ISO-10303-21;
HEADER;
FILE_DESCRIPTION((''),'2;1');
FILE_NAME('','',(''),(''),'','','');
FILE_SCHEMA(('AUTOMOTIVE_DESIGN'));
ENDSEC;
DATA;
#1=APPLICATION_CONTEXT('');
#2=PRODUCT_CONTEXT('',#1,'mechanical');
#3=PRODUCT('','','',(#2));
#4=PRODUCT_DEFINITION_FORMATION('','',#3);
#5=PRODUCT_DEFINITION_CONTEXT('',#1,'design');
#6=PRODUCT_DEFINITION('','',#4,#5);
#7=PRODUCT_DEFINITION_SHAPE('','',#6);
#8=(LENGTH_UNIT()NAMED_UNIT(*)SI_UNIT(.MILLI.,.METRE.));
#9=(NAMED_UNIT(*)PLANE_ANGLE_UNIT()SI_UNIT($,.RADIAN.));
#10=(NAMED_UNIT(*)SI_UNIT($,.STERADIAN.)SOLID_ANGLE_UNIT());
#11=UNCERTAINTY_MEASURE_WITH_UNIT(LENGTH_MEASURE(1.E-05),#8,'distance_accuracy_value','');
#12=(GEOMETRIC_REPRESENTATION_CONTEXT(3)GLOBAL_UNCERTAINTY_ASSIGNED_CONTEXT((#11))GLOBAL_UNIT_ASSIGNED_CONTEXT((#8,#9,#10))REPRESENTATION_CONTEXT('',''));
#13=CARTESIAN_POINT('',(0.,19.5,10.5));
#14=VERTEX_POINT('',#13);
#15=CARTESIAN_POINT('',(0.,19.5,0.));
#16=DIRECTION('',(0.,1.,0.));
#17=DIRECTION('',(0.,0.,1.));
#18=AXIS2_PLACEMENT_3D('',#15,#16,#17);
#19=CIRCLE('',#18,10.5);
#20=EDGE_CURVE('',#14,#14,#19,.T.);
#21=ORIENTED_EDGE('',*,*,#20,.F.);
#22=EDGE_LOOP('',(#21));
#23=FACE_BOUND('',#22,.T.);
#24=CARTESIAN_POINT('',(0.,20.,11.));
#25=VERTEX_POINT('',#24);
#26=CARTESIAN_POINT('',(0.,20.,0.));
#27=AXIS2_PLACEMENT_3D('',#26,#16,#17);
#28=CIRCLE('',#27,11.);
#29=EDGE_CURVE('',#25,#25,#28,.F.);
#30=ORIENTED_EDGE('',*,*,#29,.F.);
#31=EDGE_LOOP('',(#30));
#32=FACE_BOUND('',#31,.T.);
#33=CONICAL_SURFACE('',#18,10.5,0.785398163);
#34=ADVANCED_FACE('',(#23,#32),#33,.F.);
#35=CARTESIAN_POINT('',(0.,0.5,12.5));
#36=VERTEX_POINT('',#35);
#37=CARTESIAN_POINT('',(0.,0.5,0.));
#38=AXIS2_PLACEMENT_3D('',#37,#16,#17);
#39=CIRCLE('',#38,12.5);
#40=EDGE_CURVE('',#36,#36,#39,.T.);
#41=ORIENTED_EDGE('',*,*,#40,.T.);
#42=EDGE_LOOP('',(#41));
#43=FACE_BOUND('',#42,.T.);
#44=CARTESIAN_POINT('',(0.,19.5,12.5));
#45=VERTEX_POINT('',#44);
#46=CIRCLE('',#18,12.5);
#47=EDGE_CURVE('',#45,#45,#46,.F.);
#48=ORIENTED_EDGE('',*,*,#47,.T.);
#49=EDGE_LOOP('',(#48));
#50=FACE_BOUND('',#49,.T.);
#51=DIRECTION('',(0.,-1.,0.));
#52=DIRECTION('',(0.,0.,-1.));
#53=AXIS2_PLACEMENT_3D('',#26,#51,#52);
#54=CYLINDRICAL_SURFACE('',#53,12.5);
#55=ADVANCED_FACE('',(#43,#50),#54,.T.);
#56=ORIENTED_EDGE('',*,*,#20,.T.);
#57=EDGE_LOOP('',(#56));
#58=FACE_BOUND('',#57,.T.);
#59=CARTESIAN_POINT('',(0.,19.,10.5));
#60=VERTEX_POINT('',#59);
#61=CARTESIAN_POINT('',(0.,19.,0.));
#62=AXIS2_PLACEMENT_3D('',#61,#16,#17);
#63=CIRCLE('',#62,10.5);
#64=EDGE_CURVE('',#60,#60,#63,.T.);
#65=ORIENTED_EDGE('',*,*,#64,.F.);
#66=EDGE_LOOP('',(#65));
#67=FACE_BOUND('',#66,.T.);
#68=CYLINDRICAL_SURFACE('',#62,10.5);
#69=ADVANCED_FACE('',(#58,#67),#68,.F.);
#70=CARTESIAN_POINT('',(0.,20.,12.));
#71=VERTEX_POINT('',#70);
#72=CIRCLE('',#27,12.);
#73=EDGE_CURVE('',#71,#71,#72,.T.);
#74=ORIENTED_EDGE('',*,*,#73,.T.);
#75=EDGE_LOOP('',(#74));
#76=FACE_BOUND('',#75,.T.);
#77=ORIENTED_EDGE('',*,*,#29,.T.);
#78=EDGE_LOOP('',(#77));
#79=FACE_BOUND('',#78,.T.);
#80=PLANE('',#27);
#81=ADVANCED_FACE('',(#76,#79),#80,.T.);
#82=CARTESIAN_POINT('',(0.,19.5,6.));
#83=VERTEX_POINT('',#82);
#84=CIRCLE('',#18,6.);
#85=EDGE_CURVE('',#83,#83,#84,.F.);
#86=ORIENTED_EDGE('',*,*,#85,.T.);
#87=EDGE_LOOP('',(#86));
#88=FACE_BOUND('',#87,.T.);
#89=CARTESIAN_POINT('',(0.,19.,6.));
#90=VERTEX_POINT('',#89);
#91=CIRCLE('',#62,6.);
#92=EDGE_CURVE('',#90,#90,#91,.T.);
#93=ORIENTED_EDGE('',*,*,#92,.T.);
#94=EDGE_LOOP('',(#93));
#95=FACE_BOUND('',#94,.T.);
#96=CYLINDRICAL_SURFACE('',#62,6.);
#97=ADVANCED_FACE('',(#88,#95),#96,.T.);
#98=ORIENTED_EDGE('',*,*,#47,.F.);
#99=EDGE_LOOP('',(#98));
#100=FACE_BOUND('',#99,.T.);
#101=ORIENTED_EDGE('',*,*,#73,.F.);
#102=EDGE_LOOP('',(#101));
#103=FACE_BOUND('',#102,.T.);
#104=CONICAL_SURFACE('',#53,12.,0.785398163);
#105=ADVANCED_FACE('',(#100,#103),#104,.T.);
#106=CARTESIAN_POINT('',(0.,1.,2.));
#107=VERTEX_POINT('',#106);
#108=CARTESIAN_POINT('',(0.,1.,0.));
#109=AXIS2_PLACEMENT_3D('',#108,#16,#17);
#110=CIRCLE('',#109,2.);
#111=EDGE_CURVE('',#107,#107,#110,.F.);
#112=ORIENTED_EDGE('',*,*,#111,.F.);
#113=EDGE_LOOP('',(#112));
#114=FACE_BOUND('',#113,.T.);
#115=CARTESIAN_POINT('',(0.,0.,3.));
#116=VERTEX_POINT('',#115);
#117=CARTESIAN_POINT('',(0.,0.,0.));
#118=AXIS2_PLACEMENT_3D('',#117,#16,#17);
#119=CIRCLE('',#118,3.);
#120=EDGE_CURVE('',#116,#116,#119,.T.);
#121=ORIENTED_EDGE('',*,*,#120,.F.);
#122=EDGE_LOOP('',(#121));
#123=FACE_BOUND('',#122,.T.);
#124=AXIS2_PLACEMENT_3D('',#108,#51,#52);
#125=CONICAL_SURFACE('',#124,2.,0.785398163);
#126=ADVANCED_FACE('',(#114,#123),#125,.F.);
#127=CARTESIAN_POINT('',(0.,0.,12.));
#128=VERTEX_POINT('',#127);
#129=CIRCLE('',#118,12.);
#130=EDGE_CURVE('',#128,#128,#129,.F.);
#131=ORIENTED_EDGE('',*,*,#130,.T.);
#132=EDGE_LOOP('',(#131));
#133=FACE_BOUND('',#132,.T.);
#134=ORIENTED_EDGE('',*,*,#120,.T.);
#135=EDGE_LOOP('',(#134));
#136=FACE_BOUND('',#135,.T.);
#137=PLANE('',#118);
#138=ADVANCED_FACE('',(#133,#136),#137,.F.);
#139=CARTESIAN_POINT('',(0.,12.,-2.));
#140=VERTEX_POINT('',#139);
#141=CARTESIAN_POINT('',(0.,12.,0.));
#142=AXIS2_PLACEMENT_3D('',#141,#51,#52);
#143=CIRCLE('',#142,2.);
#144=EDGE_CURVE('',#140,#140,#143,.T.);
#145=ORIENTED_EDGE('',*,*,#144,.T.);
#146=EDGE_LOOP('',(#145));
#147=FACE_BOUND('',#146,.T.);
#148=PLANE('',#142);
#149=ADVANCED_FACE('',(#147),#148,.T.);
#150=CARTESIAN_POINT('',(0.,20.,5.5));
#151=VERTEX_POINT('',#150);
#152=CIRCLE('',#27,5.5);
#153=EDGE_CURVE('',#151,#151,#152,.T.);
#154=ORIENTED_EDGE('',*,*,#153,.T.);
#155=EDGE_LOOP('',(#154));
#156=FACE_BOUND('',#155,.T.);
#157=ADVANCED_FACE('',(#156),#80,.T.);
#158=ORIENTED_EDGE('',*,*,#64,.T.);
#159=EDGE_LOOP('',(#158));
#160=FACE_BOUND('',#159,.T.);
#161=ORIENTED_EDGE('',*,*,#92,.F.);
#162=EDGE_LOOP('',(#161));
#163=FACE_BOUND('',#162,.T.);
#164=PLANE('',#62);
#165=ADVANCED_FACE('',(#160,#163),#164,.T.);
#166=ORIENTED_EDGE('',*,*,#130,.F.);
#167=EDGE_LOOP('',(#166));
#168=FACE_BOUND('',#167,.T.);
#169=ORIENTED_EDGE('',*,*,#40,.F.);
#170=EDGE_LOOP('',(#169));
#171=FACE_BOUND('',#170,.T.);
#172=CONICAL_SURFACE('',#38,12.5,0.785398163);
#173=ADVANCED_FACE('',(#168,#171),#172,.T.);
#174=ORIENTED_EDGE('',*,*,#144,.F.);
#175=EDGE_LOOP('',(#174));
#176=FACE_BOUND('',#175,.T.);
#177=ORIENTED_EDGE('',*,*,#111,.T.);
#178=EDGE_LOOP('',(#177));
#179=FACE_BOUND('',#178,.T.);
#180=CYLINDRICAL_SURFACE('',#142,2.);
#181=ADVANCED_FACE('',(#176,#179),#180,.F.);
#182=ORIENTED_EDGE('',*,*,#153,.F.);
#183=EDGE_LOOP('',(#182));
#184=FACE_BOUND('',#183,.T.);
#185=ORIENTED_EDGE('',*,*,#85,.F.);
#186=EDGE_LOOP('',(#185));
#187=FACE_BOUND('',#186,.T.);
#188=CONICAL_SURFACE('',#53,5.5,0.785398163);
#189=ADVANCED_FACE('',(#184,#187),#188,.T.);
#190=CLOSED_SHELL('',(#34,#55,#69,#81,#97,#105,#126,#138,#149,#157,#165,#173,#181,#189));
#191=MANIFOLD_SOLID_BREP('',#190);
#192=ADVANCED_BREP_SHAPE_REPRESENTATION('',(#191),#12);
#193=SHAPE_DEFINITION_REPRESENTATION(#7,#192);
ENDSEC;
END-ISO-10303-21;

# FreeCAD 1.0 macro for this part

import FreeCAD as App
import Part
import Sketcher
Q = App.Units.Quantity


def edges_at(feature, points):
    """Names of the edges that pass closest to the given points."""
    edges = feature.Shape.Edges
    near = lambda p: min(range(len(edges)), key=lambda i: edges[i].distToShape(Part.Vertex(*p))[0])
    return sorted({f"Edge{near(p) + 1}" for p in points})

doc = App.newDocument("Part")
body = doc.addObject("PartDesign::Body", "Body")

sketch1 = doc.addObject("Sketcher::SketchObject", "Sketch")
body.addObject(sketch1)
sketch1.AttachmentSupport = (doc.XZ_Plane, [""])
sketch1.MapMode = "FlatFace"
sketch1.addGeometry(Part.Circle(App.Vector(0, 0, 0), App.Vector(0, 0, 1), 12), False)
sketch1.addConstraint([
    Sketcher.Constraint("Coincident", 0, 3, -1, 1),
    Sketcher.Constraint("Diameter", 0, Q("25 mm")),
])
pad1 = doc.addObject("PartDesign::Pad", "Pad")
body.addObject(pad1)
pad1.Profile = sketch1
pad1.Length = 20
pad1.Reversed = True

sketch2 = doc.addObject("Sketcher::SketchObject", "Sketch001")
body.addObject(sketch2)
sketch2.AttachmentSupport = (doc.XZ_Plane, [""])
sketch2.MapMode = "FlatFace"
sketch2.AttachmentOffset = App.Placement(App.Vector(0, 0, -20), App.Rotation())
sketch2.addGeometry([
    Part.Circle(App.Vector(0, 0, 0), App.Vector(0, 0, 1), 10),
    Part.Circle(App.Vector(0, 0, 0), App.Vector(0, 0, 1), 6),
], False)
sketch2.addConstraint([
    Sketcher.Constraint("Coincident", 0, 3, -1, 1),
    Sketcher.Constraint("Coincident", 1, 3, -1, 1),
    Sketcher.Constraint("Diameter", 0, Q("21 mm")),
    Sketcher.Constraint("Diameter", 1, Q("12 mm")),
])
pocket1 = doc.addObject("PartDesign::Pocket", "Pocket")
body.addObject(pocket1)
pocket1.Profile = sketch2
pocket1.Length = 1
pocket1.Reversed = True
doc.recompute()

chamfer = doc.addObject("PartDesign::Chamfer", "Chamfer")
body.addObject(chamfer)
chamfer.Base = (pocket1, edges_at(pocket1, [
    (-12.5, 0, 0),
    (-12.5, 20, 0),
    (-10.5, 20, 0),
    (-6, 20, 0),
]))
chamfer.Size = 0.5

sketch3 = doc.addObject("Sketcher::SketchObject", "Sketch002")
body.addObject(sketch3)
sketch3.AttachmentSupport = (doc.XZ_Plane, [""])
sketch3.MapMode = "FlatFace"
sketch3.addGeometry(Part.Circle(App.Vector(0, 0, 0), App.Vector(0, 0, 1), 2), False)
sketch3.addConstraint([
    Sketcher.Constraint("Coincident", 0, 3, -1, 1),
    Sketcher.Constraint("Diameter", 0, Q("4 mm")),
])
pocket2 = doc.addObject("PartDesign::Pocket", "Pocket001")
body.addObject(pocket2)
pocket2.Profile = sketch3
pocket2.Length = 12
doc.recompute()

chamfer2 = doc.addObject("PartDesign::Chamfer", "Chamfer001")
body.addObject(chamfer2)
chamfer2.Base = (pocket2, edges_at(pocket2, [(-2, 0, 0)]))
chamfer2.Size = 1

doc.recompute()
